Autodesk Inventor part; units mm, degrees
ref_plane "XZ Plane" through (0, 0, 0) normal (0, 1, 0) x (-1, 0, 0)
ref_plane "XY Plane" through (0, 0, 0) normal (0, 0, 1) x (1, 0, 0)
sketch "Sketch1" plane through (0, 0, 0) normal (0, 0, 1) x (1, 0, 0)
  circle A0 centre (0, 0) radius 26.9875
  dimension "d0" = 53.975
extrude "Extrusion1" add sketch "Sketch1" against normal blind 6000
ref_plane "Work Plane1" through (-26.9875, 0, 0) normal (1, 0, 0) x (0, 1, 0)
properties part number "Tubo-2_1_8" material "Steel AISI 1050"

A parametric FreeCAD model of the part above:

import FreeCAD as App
import Part
import Sketcher

V = App.Vector
Q = App.Units.Quantity

doc = App.newDocument("Part")
params = doc.addObject("Spreadsheet::Sheet", "Params")
for row, (alias, value) in enumerate([
    ("pad1_length", "6000 mm"),
], start=1):
    params.set(f"A{row}", alias)
    params.set(f"B{row}", "=" + value)
    params.setAlias(f"B{row}", alias)

body = doc.addObject("PartDesign::Body", "Body")

# Sketch on XY plane
sketch1 = body.newObject("Sketcher::SketchObject", "Sketch")
sketch1.AttachmentSupport = (doc.getObject("XY_Plane"), [""])
sketch1.MapMode = "FlatFace"
sketch1.addGeometry(Part.Circle(V(0, 0, 0), V(0, 0, 1), 27), False)
sketch1.addConstraint(Sketcher.Constraint("Coincident", 0, 3, -1, 1))
sketch1.addConstraint(Sketcher.Constraint("Diameter", 0, Q("53.975 mm")))
pad1 = body.newObject("PartDesign::Pad", "Pad")
pad1.Profile = sketch1
pad1.setExpression("Length", "Params.pad1_length")
pad1.Reversed = True

doc.recompute()
